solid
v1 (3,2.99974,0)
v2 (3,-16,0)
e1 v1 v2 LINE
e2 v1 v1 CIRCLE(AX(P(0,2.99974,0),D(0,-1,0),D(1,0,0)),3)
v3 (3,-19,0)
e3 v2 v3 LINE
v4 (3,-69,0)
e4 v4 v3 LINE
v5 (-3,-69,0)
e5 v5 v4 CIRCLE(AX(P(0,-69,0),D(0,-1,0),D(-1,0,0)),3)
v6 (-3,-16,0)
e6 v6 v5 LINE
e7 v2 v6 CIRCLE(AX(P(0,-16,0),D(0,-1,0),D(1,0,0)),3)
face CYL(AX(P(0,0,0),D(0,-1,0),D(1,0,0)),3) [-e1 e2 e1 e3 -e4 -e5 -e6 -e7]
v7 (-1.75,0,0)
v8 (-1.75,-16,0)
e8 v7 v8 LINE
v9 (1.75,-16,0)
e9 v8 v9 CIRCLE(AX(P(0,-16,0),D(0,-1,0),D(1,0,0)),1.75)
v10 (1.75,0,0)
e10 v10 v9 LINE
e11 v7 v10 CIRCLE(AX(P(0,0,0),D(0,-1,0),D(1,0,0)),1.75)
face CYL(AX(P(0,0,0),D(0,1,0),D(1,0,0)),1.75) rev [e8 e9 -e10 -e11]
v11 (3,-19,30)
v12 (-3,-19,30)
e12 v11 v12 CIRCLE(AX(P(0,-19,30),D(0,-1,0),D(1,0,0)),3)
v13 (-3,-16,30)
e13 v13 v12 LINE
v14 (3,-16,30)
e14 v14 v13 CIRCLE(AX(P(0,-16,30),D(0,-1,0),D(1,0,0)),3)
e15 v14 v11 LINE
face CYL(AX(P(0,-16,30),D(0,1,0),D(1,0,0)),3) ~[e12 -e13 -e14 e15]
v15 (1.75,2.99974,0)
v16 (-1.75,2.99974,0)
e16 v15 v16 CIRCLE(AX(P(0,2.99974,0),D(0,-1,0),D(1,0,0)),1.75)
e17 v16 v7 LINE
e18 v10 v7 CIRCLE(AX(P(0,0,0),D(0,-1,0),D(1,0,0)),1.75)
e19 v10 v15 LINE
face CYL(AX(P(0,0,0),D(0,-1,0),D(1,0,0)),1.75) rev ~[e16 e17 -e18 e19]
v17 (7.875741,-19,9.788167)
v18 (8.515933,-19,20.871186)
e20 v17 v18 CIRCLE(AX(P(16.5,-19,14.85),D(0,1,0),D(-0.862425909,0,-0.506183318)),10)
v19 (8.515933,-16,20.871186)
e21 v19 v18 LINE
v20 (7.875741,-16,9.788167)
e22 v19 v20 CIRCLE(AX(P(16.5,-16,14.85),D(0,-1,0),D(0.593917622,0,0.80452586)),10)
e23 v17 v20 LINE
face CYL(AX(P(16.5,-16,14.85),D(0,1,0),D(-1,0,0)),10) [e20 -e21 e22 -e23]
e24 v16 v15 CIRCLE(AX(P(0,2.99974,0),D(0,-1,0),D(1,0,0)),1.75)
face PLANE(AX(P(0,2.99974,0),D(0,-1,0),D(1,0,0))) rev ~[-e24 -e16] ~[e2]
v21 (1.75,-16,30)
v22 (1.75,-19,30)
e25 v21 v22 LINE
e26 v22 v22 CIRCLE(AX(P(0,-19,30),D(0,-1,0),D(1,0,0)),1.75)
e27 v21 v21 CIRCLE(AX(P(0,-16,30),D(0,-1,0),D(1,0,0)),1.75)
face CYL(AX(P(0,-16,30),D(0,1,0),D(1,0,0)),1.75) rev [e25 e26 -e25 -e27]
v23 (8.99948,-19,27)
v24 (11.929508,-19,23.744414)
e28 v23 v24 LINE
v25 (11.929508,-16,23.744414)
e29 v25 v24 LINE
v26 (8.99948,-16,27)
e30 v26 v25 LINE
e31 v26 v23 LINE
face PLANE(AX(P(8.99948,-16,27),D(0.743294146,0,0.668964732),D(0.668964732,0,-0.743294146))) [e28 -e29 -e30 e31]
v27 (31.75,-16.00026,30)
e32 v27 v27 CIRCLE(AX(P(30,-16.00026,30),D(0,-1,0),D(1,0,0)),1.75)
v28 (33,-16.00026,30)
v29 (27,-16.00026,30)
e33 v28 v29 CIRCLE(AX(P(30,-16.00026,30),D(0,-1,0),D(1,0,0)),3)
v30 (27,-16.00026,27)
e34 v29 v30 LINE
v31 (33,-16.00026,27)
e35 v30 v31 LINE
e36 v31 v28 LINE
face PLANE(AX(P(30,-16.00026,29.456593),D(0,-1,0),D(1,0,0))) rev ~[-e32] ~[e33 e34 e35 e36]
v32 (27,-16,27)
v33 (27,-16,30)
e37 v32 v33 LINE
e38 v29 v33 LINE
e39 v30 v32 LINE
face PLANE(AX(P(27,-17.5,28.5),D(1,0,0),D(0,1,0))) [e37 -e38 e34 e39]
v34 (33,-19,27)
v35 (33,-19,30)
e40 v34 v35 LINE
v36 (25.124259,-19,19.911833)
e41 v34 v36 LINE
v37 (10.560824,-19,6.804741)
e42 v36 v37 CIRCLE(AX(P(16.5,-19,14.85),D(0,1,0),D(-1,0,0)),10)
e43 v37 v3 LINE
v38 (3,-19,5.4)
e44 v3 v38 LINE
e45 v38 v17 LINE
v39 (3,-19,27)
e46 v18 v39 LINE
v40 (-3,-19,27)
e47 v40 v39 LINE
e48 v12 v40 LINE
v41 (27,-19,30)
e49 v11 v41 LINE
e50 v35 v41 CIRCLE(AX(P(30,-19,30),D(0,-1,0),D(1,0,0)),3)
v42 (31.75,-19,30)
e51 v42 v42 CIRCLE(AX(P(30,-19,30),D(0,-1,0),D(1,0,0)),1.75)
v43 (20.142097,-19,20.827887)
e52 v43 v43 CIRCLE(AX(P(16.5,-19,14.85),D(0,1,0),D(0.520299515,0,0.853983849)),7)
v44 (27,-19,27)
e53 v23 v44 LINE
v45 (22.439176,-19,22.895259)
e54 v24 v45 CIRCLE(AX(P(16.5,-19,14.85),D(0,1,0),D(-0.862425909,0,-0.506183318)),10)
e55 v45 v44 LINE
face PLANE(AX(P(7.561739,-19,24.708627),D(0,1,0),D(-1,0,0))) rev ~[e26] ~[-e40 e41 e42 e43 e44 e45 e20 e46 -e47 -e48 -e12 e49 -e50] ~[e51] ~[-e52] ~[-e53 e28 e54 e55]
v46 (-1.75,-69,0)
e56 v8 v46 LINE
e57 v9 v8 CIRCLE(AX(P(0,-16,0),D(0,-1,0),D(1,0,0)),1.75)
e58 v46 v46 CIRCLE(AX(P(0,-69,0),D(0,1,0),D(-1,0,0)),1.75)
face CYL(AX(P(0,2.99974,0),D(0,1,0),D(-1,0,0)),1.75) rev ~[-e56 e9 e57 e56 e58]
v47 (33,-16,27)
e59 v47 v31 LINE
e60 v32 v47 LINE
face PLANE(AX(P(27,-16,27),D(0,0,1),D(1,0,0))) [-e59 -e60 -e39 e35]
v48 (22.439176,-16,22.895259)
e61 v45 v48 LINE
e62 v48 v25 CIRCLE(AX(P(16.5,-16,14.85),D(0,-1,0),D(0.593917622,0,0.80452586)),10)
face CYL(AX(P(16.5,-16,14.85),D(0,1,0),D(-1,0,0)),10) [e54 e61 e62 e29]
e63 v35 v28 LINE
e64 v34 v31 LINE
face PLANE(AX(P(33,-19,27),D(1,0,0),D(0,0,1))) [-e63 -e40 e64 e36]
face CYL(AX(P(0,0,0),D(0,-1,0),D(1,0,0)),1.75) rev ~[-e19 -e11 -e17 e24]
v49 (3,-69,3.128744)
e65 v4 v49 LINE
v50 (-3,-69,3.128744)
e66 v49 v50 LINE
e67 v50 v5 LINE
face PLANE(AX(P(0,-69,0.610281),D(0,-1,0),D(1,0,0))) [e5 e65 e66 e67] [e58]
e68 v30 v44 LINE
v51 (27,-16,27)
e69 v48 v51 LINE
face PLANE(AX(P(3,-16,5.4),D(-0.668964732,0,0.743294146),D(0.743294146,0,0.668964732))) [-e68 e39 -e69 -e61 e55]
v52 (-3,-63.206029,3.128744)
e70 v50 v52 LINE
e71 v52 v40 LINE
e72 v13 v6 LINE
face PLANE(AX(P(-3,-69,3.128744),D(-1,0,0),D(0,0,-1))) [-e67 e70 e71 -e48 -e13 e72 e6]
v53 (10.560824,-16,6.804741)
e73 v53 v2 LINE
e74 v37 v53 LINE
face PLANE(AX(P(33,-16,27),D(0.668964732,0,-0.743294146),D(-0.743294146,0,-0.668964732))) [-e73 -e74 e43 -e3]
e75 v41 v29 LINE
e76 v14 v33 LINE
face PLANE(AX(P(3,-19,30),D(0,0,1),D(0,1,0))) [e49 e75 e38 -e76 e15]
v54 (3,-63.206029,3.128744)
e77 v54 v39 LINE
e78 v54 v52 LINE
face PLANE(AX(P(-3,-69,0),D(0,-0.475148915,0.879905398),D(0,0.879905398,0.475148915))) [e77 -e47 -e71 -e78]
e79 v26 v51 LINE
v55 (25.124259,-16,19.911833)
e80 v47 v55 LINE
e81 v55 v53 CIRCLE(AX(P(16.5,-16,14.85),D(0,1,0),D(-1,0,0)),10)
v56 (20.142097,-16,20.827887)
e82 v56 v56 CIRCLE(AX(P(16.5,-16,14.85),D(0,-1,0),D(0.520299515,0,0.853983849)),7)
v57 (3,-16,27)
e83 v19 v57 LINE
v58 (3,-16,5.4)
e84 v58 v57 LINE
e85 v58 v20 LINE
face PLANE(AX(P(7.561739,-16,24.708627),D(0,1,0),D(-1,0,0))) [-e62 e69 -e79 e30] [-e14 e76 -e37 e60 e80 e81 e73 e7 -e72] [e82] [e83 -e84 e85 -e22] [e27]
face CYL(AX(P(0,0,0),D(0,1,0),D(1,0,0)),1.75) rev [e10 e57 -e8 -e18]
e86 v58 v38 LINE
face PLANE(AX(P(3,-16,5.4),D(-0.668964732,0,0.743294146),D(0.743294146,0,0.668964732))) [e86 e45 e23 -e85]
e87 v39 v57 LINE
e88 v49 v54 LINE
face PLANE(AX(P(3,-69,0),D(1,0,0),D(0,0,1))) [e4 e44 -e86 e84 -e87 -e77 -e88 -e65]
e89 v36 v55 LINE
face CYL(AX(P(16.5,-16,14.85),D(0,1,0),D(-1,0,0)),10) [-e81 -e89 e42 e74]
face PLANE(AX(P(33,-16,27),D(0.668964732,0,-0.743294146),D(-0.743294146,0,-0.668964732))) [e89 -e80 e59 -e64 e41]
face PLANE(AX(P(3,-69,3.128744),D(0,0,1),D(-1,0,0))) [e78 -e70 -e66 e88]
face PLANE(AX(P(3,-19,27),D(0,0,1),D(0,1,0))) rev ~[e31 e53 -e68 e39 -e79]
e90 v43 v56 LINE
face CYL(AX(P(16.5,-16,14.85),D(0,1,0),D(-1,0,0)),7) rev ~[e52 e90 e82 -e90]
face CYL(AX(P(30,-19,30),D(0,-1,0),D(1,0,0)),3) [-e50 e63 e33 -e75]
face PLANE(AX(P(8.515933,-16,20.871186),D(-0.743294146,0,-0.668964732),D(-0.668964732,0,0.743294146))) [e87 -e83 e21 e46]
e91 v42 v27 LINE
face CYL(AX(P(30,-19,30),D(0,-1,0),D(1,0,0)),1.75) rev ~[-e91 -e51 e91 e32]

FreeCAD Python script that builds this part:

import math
import FreeCAD as App
import Part
import Sketcher
Q = App.Units.Quantity

doc = App.newDocument("Part")
body = doc.addObject("PartDesign::Body", "Body")

sketch1 = body.newObject("Sketcher::SketchObject", "Sketch")
sketch1.AttachmentSupport = (doc.getObject("XZ_Plane"), [""])
sketch1.MapMode = "FlatFace"
sketch1.addGeometry(Part.Circle(App.Vector(0, 0, 0), App.Vector(0, 0, 1), 3), False)
sketch1.addGeometry(Part.Circle(App.Vector(0, 0, 0), App.Vector(0, 0, 1), 1.8), False)
sketch1.addConstraint(Sketcher.Constraint("Coincident", 0, 3, -1, 1))
sketch1.addConstraint(Sketcher.Constraint("Coincident", 1, 3, -1, 1))
sketch1.addConstraint(Sketcher.Constraint("Diameter", 0, Q("6 mm")))
sketch1.addConstraint(Sketcher.Constraint("Diameter", 1, Q("3.5 mm")))
pad1 = body.newObject("PartDesign::Pad", "Pad")
pad1.Profile = sketch1
pad1.Type = "TwoLengths"
pad1.Length = 16
pad1.Length2 = 2.99974

sketch2 = body.newObject("Sketcher::SketchObject", "Sketch001")
sketch2.AttachmentSupport = (doc.getObject("XZ_Plane"), [""])
sketch2.MapMode = "FlatFace"
sketch2.AttachmentOffset = App.Placement(App.Vector(0, 0, 16), App.Rotation())
sketch2.addGeometry(Part.LineSegment(App.Vector(-3, 30, 0), App.Vector(-3, 0, 0)), False)
sketch2.addGeometry(Part.ArcOfCircle(Part.Circle(App.Vector(0, 0, 0), App.Vector(0, 0, 1), 3), math.radians(180), math.radians(360)), False)
sketch2.addGeometry(Part.LineSegment(App.Vector(3, 0, 0), App.Vector(3, 30, 0)), False)
sketch2.addGeometry(Part.ArcOfCircle(Part.Circle(App.Vector(0, 30, 0), App.Vector(0, 0, 1), 3), math.radians(0), math.radians(180)), False)
sketch2.addGeometry(Part.Circle(App.Vector(0, 30, 0), App.Vector(0, 0, 1), 1.8), False)
sketch2.addConstraint(Sketcher.Constraint("Tangent", 0, 2, 1, 1))
sketch2.addConstraint(Sketcher.Constraint("Tangent", 1, 2, 2, 1))
sketch2.addConstraint(Sketcher.Constraint("Tangent", 2, 2, 3, 1))
sketch2.addConstraint(Sketcher.Constraint("Tangent", 3, 2, 0, 1))
sketch2.addConstraint(Sketcher.Constraint("Vertical", 0))
sketch2.addConstraint(Sketcher.Constraint("Vertical", 2))
sketch2.addConstraint(Sketcher.Constraint("Coincident", 1, 3, -1, 1))
sketch2.addConstraint(Sketcher.Constraint("Coincident", 4, 3, 3, 3))
sketch2.addConstraint(Sketcher.Constraint("Radius", 1, Q("3 mm")))
sketch2.addConstraint(Sketcher.Constraint("Diameter", 4, Q("3.5 mm")))
sketch2.addConstraint(Sketcher.Constraint("DistanceY", 0, 2, 0, 1, Q("30 mm")))
pad2 = body.newObject("PartDesign::Pad", "Pad001")
pad2.Profile = sketch2
pad2.Length = 3

sketch3 = body.newObject("Sketcher::SketchObject", "Sketch002")
sketch3.AttachmentSupport = (doc.getObject("YZ_Plane"), [""])
sketch3.MapMode = "FlatFace"
sketch3.AttachmentOffset = App.Placement(App.Vector(0, 0, -3), App.Rotation())
sketch3.addGeometry(Part.LineSegment(App.Vector(-69, 0, 0), App.Vector(-19, 27, 0)), False)
sketch3.addGeometry(Part.LineSegment(App.Vector(-19, 27, 0), App.Vector(-19, 0, 0)), False)
sketch3.addGeometry(Part.LineSegment(App.Vector(-19, 0, 0), App.Vector(-69, 0, 0)), False)
sketch3.addConstraint(Sketcher.Constraint("Coincident", 0, 2, 1, 1))
sketch3.addConstraint(Sketcher.Constraint("Coincident", 1, 2, 2, 1))
sketch3.addConstraint(Sketcher.Constraint("Coincident", 2, 2, 0, 1))
sketch3.addConstraint(Sketcher.Constraint("Vertical", 1))
sketch3.addConstraint(Sketcher.Constraint("Horizontal", 2))
sketch3.addConstraint(Sketcher.Constraint("PointOnObject", 1, 2, -1))
sketch3.addConstraint(Sketcher.Constraint("DistanceX", 2, 2, 2, 1, Q("50 mm")))
sketch3.addConstraint(Sketcher.Constraint("DistanceY", 1, 2, 1, 1, Q("27 mm")))
sketch3.addConstraint(Sketcher.Constraint("DistanceX", 0, 2, -1, 1, Q("19 mm")))
pad3 = body.newObject("PartDesign::Pad", "Pad002")
pad3.Profile = sketch3
pad3.Length = 6

sketch4 = body.newObject("Sketcher::SketchObject", "Sketch003")
sketch4.AttachmentSupport = (doc.getObject("XZ_Plane"), [""])
sketch4.MapMode = "FlatFace"
sketch4.AttachmentOffset = App.Placement(App.Vector(0, 0, 19), App.Rotation())
sketch4.addGeometry(Part.LineSegment(App.Vector(3, 0, 0), App.Vector(-3, 0, 0)), False)
sketch4.addGeometry(Part.ArcOfCircle(Part.Circle(App.Vector(0, 0, 0), App.Vector(0, 0, 1), 3), math.radians(180), math.radians(360)), False)
sketch4.addConstraint(Sketcher.Constraint("Coincident", 0, 1, 1, 2))
sketch4.addConstraint(Sketcher.Constraint("Coincident", 1, 1, 0, 2))
sketch4.addConstraint(Sketcher.Constraint("Horizontal", 0))
sketch4.addConstraint(Sketcher.Constraint("Coincident", 1, 3, -1, 1))
sketch4.addConstraint(Sketcher.Constraint("PointOnObject", 0, 1, -1))
sketch4.addConstraint(Sketcher.Constraint("Radius", 1, Q("3 mm")))
pad4 = body.newObject("PartDesign::Pad", "Pad003")
pad4.Profile = sketch4
pad4.Length = 50

sketch5 = body.newObject("Sketcher::SketchObject", "Sketch004")
sketch5.AttachmentSupport = (doc.getObject("XZ_Plane"), [""])
sketch5.MapMode = "FlatFace"
sketch5.AttachmentOffset = App.Placement(App.Vector(0, 0, 69), App.Rotation())
sketch5.addGeometry(Part.LineSegment(App.Vector(-3, 3.1, 0), App.Vector(-3, 0, 0)), False)
sketch5.addGeometry(Part.ArcOfCircle(Part.Circle(App.Vector(0, 0, 0), App.Vector(0, 0, 1), 3), math.radians(180), math.radians(360)), False)
sketch5.addGeometry(Part.LineSegment(App.Vector(3, 0, 0), App.Vector(3, 3.1, 0)), False)
sketch5.addGeometry(Part.LineSegment(App.Vector(3, 3.1, 0), App.Vector(-3, 3.1, 0)), False)
sketch5.addConstraint(Sketcher.Constraint("Tangent", 0, 2, 1, 1))
sketch5.addConstraint(Sketcher.Constraint("Tangent", 1, 2, 2, 1))
sketch5.addConstraint(Sketcher.Constraint("Coincident", 2, 2, 3, 1))
sketch5.addConstraint(Sketcher.Constraint("Coincident", 3, 2, 0, 1))
sketch5.addConstraint(Sketcher.Constraint("Vertical", 0))
sketch5.addConstraint(Sketcher.Constraint("Vertical", 2))
sketch5.addConstraint(Sketcher.Constraint("Horizontal", 3))
sketch5.addConstraint(Sketcher.Constraint("Coincident", 1, 3, -1, 1))
sketch5.addConstraint(Sketcher.Constraint("Radius", 1, Q("3 mm")))
sketch5.addConstraint(Sketcher.Constraint("DistanceY", 0, 2, 0, 1, Q("3.128744 mm")))
pad5 = body.newObject("PartDesign::Pad", "Pad004")
pad5.Profile = sketch5
pad5.Length = 6
pad5.Reversed = True

sketch6 = body.newObject("Sketcher::SketchObject", "Sketch005")
sketch6.AttachmentSupport = (doc.getObject("XZ_Plane"), [""])
sketch6.MapMode = "FlatFace"
sketch6.AttachmentOffset = App.Placement(App.Vector(0, 0, -2.99974), App.Rotation())
sketch6.addGeometry(Part.Circle(App.Vector(0, 0, 0), App.Vector(0, 0, 1), 1.8), False)
sketch6.addConstraint(Sketcher.Constraint("Coincident", 0, 3, -1, 1))
sketch6.addConstraint(Sketcher.Constraint("Diameter", 0, Q("3.5 mm")))
pocket1 = body.newObject("PartDesign::Pocket", "Pocket")
pocket1.Profile = sketch6
pocket1.Type = "ThroughAll"
pocket1.Reversed = True
body2 = doc.addObject("PartDesign::Body", "Body001")

sketch7 = body2.newObject("Sketcher::SketchObject", "Sketch006")
sketch7.AttachmentSupport = (doc.getObject("XZ_Plane001"), [""])
sketch7.MapMode = "FlatFace"
sketch7.AttachmentOffset = App.Placement(App.Vector(0, 0, 19), App.Rotation())
sketch7.addGeometry(Part.LineSegment(App.Vector(33, 27, 0), App.Vector(33, 30, 0)), False)
sketch7.addGeometry(Part.ArcOfCircle(Part.Circle(App.Vector(30, 30, 0), App.Vector(0, 0, 1), 3), math.radians(0), math.radians(180)), False)
sketch7.addGeometry(Part.LineSegment(App.Vector(27, 30, 0), App.Vector(27, 27, 0)), False)
sketch7.addGeometry(Part.LineSegment(App.Vector(27, 27, 0), App.Vector(33, 27, 0)), False)
sketch7.addGeometry(Part.Circle(App.Vector(30, 30, 0), App.Vector(0, 0, 1), 1.8), False)
sketch7.addConstraint(Sketcher.Constraint("Tangent", 0, 2, 1, 1))
sketch7.addConstraint(Sketcher.Constraint("Tangent", 1, 2, 2, 1))
sketch7.addConstraint(Sketcher.Constraint("Coincident", 2, 2, 3, 1))
sketch7.addConstraint(Sketcher.Constraint("Coincident", 3, 2, 0, 1))
sketch7.addConstraint(Sketcher.Constraint("Vertical", 0))
sketch7.addConstraint(Sketcher.Constraint("Vertical", 2))
sketch7.addConstraint(Sketcher.Constraint("Horizontal", 3))
sketch7.addConstraint(Sketcher.Constraint("Coincident", 4, 3, 1, 3))
sketch7.addConstraint(Sketcher.Constraint("Radius", 1, Q("3 mm")))
sketch7.addConstraint(Sketcher.Constraint("Diameter", 4, Q("3.5 mm")))
sketch7.addConstraint(Sketcher.Constraint("DistanceY", 0, 1, 0, 2, Q("3 mm")))
sketch7.addConstraint(Sketcher.Constraint("DistanceX", -1, 1, 1, 3, Q("30 mm")))
sketch7.addConstraint(Sketcher.Constraint("DistanceY", -1, 1, 1, 3, Q("30 mm")))
pad6 = body2.newObject("PartDesign::Pad", "Pad005")
pad6.Profile = sketch7
pad6.Length = 2.99974
pad6.Reversed = True
body.AllowCompound = True
doc.recompute()

boolean = body.newObject("PartDesign::Boolean", "Boolean")
boolean.Type = "Fuse"
boolean.addObjects([body2])

sketch8 = body.newObject("Sketcher::SketchObject", "Sketch007")
sketch8.AttachmentSupport = (doc.getObject("YZ_Plane"), [""])
sketch8.MapMode = "FlatFace"
sketch8.AttachmentOffset = App.Placement(App.Vector(0, 0, 3), App.Rotation())
sketch8.addGeometry(Part.LineSegment(App.Vector(-19, 30, 0), App.Vector(-19, 27, 0)), False)
sketch8.addGeometry(Part.LineSegment(App.Vector(-19, 27, 0), App.Vector(-16, 27, 0)), False)
sketch8.addGeometry(Part.LineSegment(App.Vector(-16, 27, 0), App.Vector(-16, 30, 0)), False)
sketch8.addGeometry(Part.LineSegment(App.Vector(-16, 30, 0), App.Vector(-19, 30, 0)), False)
sketch8.addConstraint(Sketcher.Constraint("Coincident", 0, 2, 1, 1))
sketch8.addConstraint(Sketcher.Constraint("Coincident", 1, 2, 2, 1))
sketch8.addConstraint(Sketcher.Constraint("Coincident", 2, 2, 3, 1))
sketch8.addConstraint(Sketcher.Constraint("Coincident", 3, 2, 0, 1))
sketch8.addConstraint(Sketcher.Constraint("Vertical", 0))
sketch8.addConstraint(Sketcher.Constraint("Horizontal", 1))
sketch8.addConstraint(Sketcher.Constraint("Vertical", 2))
sketch8.addConstraint(Sketcher.Constraint("Horizontal", 3))
sketch8.addConstraint(Sketcher.Constraint("Equal", 3, 0))
sketch8.addConstraint(Sketcher.Constraint("DistanceX", 1, 1, 1, 2, Q("3 mm")))
sketch8.addConstraint(Sketcher.Constraint("DistanceX", 0, 2, -1, 1, Q("19 mm")))
sketch8.addConstraint(Sketcher.Constraint("DistanceY", -1, 1, 0, 2, Q("27 mm")))
pad7 = body.newObject("PartDesign::Pad", "Pad006")
pad7.Profile = sketch8
pad7.Length = 24

sketch9 = body.newObject("Sketcher::SketchObject", "Sketch008")
sketch9.AttachmentSupport = (doc.getObject("XZ_Plane"), [""])
sketch9.MapMode = "FlatFace"
sketch9.AttachmentOffset = App.Placement(App.Vector(0, 0, 16), App.Rotation())
sketch9.addGeometry(Part.LineSegment(App.Vector(27, 27, 0), App.Vector(33, 27, 0)), False)
sketch9.addGeometry(Part.LineSegment(App.Vector(33, 27, 0), App.Vector(3, 0, 0)), False)
sketch9.addGeometry(Part.LineSegment(App.Vector(3, 0, 0), App.Vector(3, 5, 0)), False)
sketch9.addGeometry(Part.LineSegment(App.Vector(3, 5, 0), App.Vector(27, 27, 0)), False)
sketch9.addConstraint(Sketcher.Constraint("Coincident", 0, 2, 1, 1))
sketch9.addConstraint(Sketcher.Constraint("Coincident", 1, 2, 2, 1))
sketch9.addConstraint(Sketcher.Constraint("Coincident", 2, 2, 3, 1))
sketch9.addConstraint(Sketcher.Constraint("Coincident", 3, 2, 0, 1))
sketch9.addConstraint(Sketcher.Constraint("Horizontal", 0))
sketch9.addConstraint(Sketcher.Constraint("Vertical", 2))
sketch9.addConstraint(Sketcher.Constraint("PointOnObject", 1, 2, -1))
sketch9.addConstraint(Sketcher.Constraint("Parallel", 1, 3))
sketch9.addConstraint(Sketcher.Constraint("DistanceX", 0, 1, 0, 2, Q("6 mm")))
sketch9.addConstraint(Sketcher.Constraint("DistanceY", 2, 1, 2, 2, Q("5.4 mm")))
sketch9.addConstraint(Sketcher.Constraint("DistanceX", -1, 1, 0, 2, Q("33 mm")))
sketch9.addConstraint(Sketcher.Constraint("DistanceY", -1, 1, 0, 2, Q("27 mm")))
pad8 = body.newObject("PartDesign::Pad", "Pad007")
pad8.Profile = sketch9
pad8.Length = 3

sketch10 = body.newObject("Sketcher::SketchObject", "Sketch009")
sketch10.AttachmentSupport = (doc.getObject("XZ_Plane"), [""])
sketch10.MapMode = "FlatFace"
sketch10.AttachmentOffset = App.Placement(App.Vector(0, 0, 16), App.Rotation())
sketch10.addGeometry(Part.Circle(App.Vector(16, 15, 0), App.Vector(0, 0, 1), 10), False)
sketch10.addGeometry(Part.Circle(App.Vector(16, 15, 0), App.Vector(0, 0, 1), 7), False)
sketch10.addConstraint(Sketcher.Constraint("Coincident", 1, 3, 0, 3))
sketch10.addConstraint(Sketcher.Constraint("Diameter", 0, Q("20 mm")))
sketch10.addConstraint(Sketcher.Constraint("Diameter", 1, Q("14 mm")))
sketch10.addConstraint(Sketcher.Constraint("DistanceX", -1, 1, 0, 3, Q("16.5 mm")))
sketch10.addConstraint(Sketcher.Constraint("DistanceY", -1, 1, 0, 3, Q("14.85 mm")))
pad9 = body.newObject("PartDesign::Pad", "Pad008")
pad9.Profile = sketch10
pad9.Type = "UpToLast"

sketch11 = body.newObject("Sketcher::SketchObject", "Sketch010")
sketch11.AttachmentSupport = (doc.getObject("XZ_Plane"), [""])
sketch11.MapMode = "FlatFace"
sketch11.AttachmentOffset = App.Placement(App.Vector(0, 0, 16), App.Rotation())
sketch11.addGeometry(Part.LineSegment(App.Vector(8.5, 20.9, 0), App.Vector(3, 27, 0)), False)
sketch11.addGeometry(Part.LineSegment(App.Vector(3, 27, 0), App.Vector(9, 27, 0)), False)
sketch11.addGeometry(Part.LineSegment(App.Vector(9, 27, 0), App.Vector(11.9, 23.7, 0)), False)
sketch11.addGeometry(Part.ArcOfCircle(Part.Circle(App.Vector(16.5, 14.9, 0), App.Vector(0, 0, 1), 10), math.radians(117), math.radians(143)), False)
sketch11.addConstraint(Sketcher.Constraint("Coincident", 0, 2, 1, 1))
sketch11.addConstraint(Sketcher.Constraint("Coincident", 1, 2, 2, 1))
sketch11.addConstraint(Sketcher.Constraint("Coincident", 2, 2, 3, 1))
sketch11.addConstraint(Sketcher.Constraint("Coincident", 3, 2, 0, 1))
sketch11.addConstraint(Sketcher.Constraint("Horizontal", 1))
sketch11.addConstraint(Sketcher.Constraint("Parallel", 0, 2))
sketch11.addConstraint(Sketcher.Constraint("Radius", 3, Q("10 mm")))
sketch11.addConstraint(Sketcher.Constraint("DistanceX", -1, 1, 0, 2, Q("3 mm")))
sketch11.addConstraint(Sketcher.Constraint("DistanceY", -1, 1, 0, 2, Q("27 mm")))
sketch11.addConstraint(Sketcher.Constraint("DistanceX", -1, 1, 3, 3, Q("16.5 mm")))
sketch11.addConstraint(Sketcher.Constraint("DistanceY", -1, 1, 3, 3, Q("14.85 mm")))
sketch11.addConstraint(Sketcher.Constraint("DistanceX", 1, 1, 1, 2, Q("5.99948 mm")))
sketch11.addConstraint(Sketcher.Constraint("DistanceY", 3, 2, 2, 2, Q("2.873228 mm")))
pad10 = body.newObject("PartDesign::Pad", "Pad009")
pad10.Profile = sketch11
pad10.Length = 3

sketch12 = body.newObject("Sketcher::SketchObject", "Sketch011")
sketch12.AttachmentSupport = (doc.getObject("XZ_Plane"), [""])
sketch12.MapMode = "FlatFace"
sketch12.AttachmentOffset = App.Placement(App.Vector(0, 0, 16), App.Rotation())
sketch12.addGeometry(Part.Circle(App.Vector(16, 15, 0), App.Vector(0, 0, 1), 7), False)
sketch12.addConstraint(Sketcher.Constraint("Diameter", 0, Q("14 mm")))
sketch12.addConstraint(Sketcher.Constraint("DistanceX", -1, 1, 0, 3, Q("16.5 mm")))
sketch12.addConstraint(Sketcher.Constraint("DistanceY", -1, 1, 0, 3, Q("14.85 mm")))
pocket2 = body.newObject("PartDesign::Pocket", "Pocket001")
pocket2.Profile = sketch12
pocket2.Length = 25.4
pocket2.Reversed = True

doc.recompute()
